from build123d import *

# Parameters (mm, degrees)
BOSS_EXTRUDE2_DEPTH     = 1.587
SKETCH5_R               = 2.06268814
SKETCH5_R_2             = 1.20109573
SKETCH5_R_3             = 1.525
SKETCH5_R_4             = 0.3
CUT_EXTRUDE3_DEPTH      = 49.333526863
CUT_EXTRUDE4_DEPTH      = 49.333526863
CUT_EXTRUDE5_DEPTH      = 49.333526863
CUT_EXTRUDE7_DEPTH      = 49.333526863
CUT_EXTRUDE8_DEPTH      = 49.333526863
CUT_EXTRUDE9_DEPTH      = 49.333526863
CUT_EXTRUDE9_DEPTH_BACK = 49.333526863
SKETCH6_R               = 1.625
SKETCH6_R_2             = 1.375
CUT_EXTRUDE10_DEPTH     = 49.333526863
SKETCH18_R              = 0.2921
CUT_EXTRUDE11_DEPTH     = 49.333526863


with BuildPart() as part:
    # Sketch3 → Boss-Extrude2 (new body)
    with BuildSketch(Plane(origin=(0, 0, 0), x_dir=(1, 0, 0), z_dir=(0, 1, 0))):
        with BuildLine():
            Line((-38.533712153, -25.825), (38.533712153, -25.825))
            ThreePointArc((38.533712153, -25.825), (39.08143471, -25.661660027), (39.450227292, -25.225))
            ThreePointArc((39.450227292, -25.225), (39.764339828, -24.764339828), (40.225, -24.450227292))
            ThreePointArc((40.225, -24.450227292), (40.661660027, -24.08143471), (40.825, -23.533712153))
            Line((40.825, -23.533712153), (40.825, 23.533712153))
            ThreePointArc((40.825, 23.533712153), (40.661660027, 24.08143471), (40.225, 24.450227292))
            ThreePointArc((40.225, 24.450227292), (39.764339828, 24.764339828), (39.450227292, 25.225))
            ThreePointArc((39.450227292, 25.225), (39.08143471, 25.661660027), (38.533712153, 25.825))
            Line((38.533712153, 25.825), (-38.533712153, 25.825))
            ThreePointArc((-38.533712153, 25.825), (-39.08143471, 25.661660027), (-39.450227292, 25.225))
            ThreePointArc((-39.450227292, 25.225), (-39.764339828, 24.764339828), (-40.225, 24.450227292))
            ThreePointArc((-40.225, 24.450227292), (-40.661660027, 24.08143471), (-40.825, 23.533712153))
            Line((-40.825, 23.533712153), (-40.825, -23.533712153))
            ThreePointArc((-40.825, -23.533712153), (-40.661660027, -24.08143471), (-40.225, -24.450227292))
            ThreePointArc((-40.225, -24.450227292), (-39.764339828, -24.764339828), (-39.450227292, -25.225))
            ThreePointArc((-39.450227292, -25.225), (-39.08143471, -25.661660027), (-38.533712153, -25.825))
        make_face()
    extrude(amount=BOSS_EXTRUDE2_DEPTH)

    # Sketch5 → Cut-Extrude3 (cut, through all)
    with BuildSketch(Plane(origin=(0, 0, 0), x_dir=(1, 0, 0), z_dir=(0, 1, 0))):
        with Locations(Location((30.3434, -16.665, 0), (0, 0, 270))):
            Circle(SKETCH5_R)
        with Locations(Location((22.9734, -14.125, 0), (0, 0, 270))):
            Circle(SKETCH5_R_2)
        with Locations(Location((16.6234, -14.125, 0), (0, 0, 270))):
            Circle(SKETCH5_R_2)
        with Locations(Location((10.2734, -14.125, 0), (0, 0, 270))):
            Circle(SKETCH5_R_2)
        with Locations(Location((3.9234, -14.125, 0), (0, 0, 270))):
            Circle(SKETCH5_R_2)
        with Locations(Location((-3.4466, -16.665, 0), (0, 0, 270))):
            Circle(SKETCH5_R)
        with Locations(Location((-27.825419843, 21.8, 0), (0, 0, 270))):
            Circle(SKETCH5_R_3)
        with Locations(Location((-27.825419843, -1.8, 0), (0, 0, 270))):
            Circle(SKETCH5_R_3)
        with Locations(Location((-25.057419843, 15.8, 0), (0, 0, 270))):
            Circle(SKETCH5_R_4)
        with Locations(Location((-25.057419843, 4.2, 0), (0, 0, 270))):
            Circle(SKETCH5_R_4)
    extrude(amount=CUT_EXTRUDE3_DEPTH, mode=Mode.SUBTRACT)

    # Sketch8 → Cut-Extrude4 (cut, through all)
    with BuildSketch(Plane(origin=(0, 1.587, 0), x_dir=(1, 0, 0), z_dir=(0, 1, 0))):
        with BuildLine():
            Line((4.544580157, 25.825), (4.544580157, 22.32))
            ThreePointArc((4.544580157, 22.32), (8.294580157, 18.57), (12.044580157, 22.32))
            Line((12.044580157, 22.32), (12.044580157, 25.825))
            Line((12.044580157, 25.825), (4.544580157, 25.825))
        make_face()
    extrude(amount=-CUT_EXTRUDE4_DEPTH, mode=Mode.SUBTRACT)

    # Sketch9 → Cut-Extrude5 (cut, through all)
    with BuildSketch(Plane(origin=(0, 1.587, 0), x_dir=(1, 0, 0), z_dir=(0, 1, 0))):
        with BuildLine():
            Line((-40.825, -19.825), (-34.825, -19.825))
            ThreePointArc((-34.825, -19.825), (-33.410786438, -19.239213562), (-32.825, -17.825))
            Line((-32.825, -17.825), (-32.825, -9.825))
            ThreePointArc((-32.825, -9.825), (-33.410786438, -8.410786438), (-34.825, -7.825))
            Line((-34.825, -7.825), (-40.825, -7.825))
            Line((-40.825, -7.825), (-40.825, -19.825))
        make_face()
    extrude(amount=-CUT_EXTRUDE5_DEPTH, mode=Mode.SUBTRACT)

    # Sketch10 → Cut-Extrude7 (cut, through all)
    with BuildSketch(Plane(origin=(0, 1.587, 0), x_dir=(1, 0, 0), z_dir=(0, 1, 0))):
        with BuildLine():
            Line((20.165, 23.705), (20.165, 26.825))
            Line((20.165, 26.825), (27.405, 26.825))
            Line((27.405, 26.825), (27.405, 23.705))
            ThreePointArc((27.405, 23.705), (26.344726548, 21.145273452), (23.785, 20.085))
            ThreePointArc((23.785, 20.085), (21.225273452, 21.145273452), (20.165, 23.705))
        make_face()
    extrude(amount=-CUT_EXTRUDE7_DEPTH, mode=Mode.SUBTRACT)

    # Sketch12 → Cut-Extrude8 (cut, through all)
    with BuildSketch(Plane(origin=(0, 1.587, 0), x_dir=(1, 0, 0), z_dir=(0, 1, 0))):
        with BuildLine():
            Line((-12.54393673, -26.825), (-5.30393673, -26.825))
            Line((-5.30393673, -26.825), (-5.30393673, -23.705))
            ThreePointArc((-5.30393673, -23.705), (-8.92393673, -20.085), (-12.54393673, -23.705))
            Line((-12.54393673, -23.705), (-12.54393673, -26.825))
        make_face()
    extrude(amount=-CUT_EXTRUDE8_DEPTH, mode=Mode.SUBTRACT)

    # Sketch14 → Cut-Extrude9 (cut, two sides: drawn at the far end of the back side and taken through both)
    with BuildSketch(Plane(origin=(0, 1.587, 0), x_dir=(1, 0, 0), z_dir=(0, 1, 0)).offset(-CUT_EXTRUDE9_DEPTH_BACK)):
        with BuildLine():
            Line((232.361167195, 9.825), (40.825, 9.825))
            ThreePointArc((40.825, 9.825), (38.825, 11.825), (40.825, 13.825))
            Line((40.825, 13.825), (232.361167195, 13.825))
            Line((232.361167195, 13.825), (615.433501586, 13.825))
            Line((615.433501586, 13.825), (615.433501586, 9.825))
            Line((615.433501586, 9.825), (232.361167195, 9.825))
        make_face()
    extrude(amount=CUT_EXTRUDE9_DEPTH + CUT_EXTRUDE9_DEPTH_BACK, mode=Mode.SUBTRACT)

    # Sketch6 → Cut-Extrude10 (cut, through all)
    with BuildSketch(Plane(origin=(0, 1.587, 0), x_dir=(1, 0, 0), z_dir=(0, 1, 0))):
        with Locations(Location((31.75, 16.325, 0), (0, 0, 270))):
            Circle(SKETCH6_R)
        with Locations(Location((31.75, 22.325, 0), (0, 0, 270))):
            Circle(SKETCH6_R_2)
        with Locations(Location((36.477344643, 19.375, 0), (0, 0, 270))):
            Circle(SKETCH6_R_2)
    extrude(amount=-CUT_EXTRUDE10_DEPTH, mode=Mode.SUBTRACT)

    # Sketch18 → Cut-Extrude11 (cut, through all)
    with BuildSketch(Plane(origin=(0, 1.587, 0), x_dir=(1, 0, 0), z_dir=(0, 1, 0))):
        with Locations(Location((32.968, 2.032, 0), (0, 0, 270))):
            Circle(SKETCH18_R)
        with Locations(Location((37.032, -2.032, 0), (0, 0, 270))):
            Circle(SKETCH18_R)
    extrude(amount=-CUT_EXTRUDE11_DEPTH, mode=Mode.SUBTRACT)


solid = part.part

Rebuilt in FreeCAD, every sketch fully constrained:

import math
import FreeCAD as App
import Part
import Sketcher
from FreeCAD import Vector

doc = App.newDocument("Part")
params = doc.addObject("Spreadsheet::Sheet", "Params")
for row, (alias, value) in enumerate([
    ("sketch1_radius", "1 mm"),
    ("sketch1_radius2", "1.5 mm"),
    ("pad1_length", "1.587 mm"),
    ("sketch2_diameter", "0.6 mm"),
    ("sketch2_diameter2", "3.05 mm"),
    ("sketch3_radius", "3.75 mm"),
    ("sketch4_radius", "2 mm"),
    ("sketch4_width", "6 mm"),
    ("sketch4_height", "8 mm"),
    ("sketch5_radius", "3.62 mm"),
    ("sketch5_height", "3.12 mm"),
    ("sketch6_radius", "3.62 mm"),
    ("sketch6_height", "3.12 mm"),
    ("sketch7_radius", "2 mm"),
    ("sketch8_diameter", "3.25 mm"),
    ("sketch8_diameter2", "2.75 mm"),
], start=1):
    params.set(f"A{row}", alias)
    params.set(f"B{row}", "=" + value)
    params.setAlias(f"B{row}", alias)

body = doc.addObject("PartDesign::Body", "Body")

# Sketch on XZ plane
sketch1 = doc.addObject("Sketcher::SketchObject", "Sketch")
body.addObject(sketch1)
sketch1.AttachmentSupport = (doc.XZ_Plane, [""])
sketch1.MapMode = "FlatFace"
sketch1.addGeometry([
    Part.LineSegment(Vector(-38.5, 25.8, 0), Vector(38.5, 25.8, 0)),  # 0
    Part.ArcOfCircle(Part.Circle(Vector(38.5, 24.8, 0), Vector(0, 0, 1), 1), math.radians(24), math.radians(90)),  # 1
    Part.ArcOfCircle(Part.Circle(Vector(40.8, 25.8, 0), Vector(0, 0, 1), 1.5), math.radians(-156), math.radians(-114)),  # 2
    Part.ArcOfCircle(Part.Circle(Vector(39.8, 23.5, 0), Vector(0, 0, 1), 1), math.radians(0), math.radians(66)),  # 3
    Part.LineSegment(Vector(40.8, 23.5, 0), Vector(40.8, -23.5, 0)),  # 4
    Part.ArcOfCircle(Part.Circle(Vector(39.8, -23.5, 0), Vector(0, 0, 1), 1), math.radians(-66), math.radians(0)),  # 5
    Part.ArcOfCircle(Part.Circle(Vector(40.8, -25.8, 0), Vector(0, 0, 1), 1.5), math.radians(114), math.radians(156)),  # 6
    Part.ArcOfCircle(Part.Circle(Vector(38.5, -24.8, 0), Vector(0, 0, 1), 1), math.radians(-90), math.radians(-24)),  # 7
    Part.LineSegment(Vector(38.5, -25.8, 0), Vector(-38.5, -25.8, 0)),  # 8
    Part.ArcOfCircle(Part.Circle(Vector(-38.5, -24.8, 0), Vector(0, 0, 1), 1), math.radians(-156), math.radians(-90)),  # 9
    Part.ArcOfCircle(Part.Circle(Vector(-40.8, -25.8, 0), Vector(0, 0, 1), 1.5), math.radians(24), math.radians(66)),  # 10
    Part.ArcOfCircle(Part.Circle(Vector(-39.8, -23.5, 0), Vector(0, 0, 1), 1), math.radians(180), math.radians(246)),  # 11
    Part.LineSegment(Vector(-40.8, -23.5, 0), Vector(-40.8, 23.5, 0)),  # 12
    Part.ArcOfCircle(Part.Circle(Vector(-39.8, 23.5, 0), Vector(0, 0, 1), 1), math.radians(114), math.radians(180)),  # 13
    Part.ArcOfCircle(Part.Circle(Vector(-40.8, 25.8, 0), Vector(0, 0, 1), 1.5), math.radians(-66), math.radians(-24)),  # 14
    Part.ArcOfCircle(Part.Circle(Vector(-38.5, 24.8, 0), Vector(0, 0, 1), 1), math.radians(90), math.radians(156)),  # 15
], False)
sketch1.addConstraint([
    Sketcher.Constraint("Tangent", 0, 2, 1, 2),
    Sketcher.Constraint("Tangent", 1, 1, 2, 1),
    Sketcher.Constraint("Tangent", 2, 2, 3, 2),
    Sketcher.Constraint("Tangent", 3, 1, 4, 1),
    Sketcher.Constraint("Tangent", 4, 2, 5, 2),
    Sketcher.Constraint("Tangent", 5, 1, 6, 1),
    Sketcher.Constraint("Tangent", 6, 2, 7, 2),
    Sketcher.Constraint("Tangent", 7, 1, 8, 1),
    Sketcher.Constraint("Tangent", 8, 2, 9, 2),
    Sketcher.Constraint("Tangent", 9, 1, 10, 1),
    Sketcher.Constraint("Tangent", 10, 2, 11, 2),
    Sketcher.Constraint("Tangent", 11, 1, 12, 1),
    Sketcher.Constraint("Tangent", 12, 2, 13, 2),
    Sketcher.Constraint("Tangent", 13, 1, 14, 1),
    Sketcher.Constraint("Tangent", 14, 2, 15, 2),
    Sketcher.Constraint("Tangent", 15, 1, 0, 1),
    Sketcher.Constraint("Horizontal", 0),
    Sketcher.Constraint("Vertical", 4),
    Sketcher.Constraint("Horizontal", 8),
    Sketcher.Constraint("Vertical", 12),
    Sketcher.Constraint("Equal", 1, 3),
    Sketcher.Constraint("Equal", 3, 5),
    Sketcher.Constraint("Equal", 2, 6),
    Sketcher.Constraint("Equal", 5, 7),
    Sketcher.Constraint("Equal", 7, 9),
    Sketcher.Constraint("Equal", 6, 10),
    Sketcher.Constraint("Equal", 9, 11),
    Sketcher.Constraint("Equal", 11, 13),
    Sketcher.Constraint("Equal", 10, 14),
    Sketcher.Constraint("Equal", 13, 15),
    Sketcher.Constraint("Symmetric", 1, 3, 9, 3, -1, 1),
    Sketcher.Constraint("Symmetric", 3, 3, 11, 3, -1, 1),
    Sketcher.Constraint("Symmetric", 6, 3, 14, 3, -1, 1),
    Sketcher.Constraint("Symmetric", 6, 3, 10, 3, -2),
    Sketcher.Constraint("Horizontal", 14, 3, 0, 2),
    Sketcher.Constraint("Vertical", 6, 3, 3, 1),
    Sketcher.Constraint("Radius", 1, 1.0),
    Sketcher.Constraint("Radius", 2, 1.5),
    Sketcher.Constraint("DistanceY", 6, 3, 1, 3, 50.65),
    Sketcher.Constraint("DistanceX", 10, 3, 5, 3, 80.65),
])
sketch1.setExpression("Constraints[36]", "Params.sketch1_radius")
sketch1.setExpression("Constraints[37]", "Params.sketch1_radius2")
pad1 = doc.addObject("PartDesign::Pad", "Pad")
body.addObject(pad1)
pad1.Profile = sketch1
pad1.setExpression("Length", "Params.pad1_length")
pad1.Reversed = True

# Sketch on XZ plane
sketch2 = doc.addObject("Sketcher::SketchObject", "Sketch001")
body.addObject(sketch2)
sketch2.AttachmentSupport = (doc.XZ_Plane, [""])
sketch2.MapMode = "FlatFace"
sketch2.addGeometry([
    Part.Circle(Vector(30.34, 16.66, 0), Vector(0, 0, 1), 2.06),  # 0
    Part.Circle(Vector(22.97, 14.12, 0), Vector(0, 0, 1), 1.2),  # 1
    Part.Circle(Vector(16.62, 14.12, 0), Vector(0, 0, 1), 1.2),  # 2
    Part.Circle(Vector(10.27, 14.12, 0), Vector(0, 0, 1), 1.2),  # 3
    Part.Circle(Vector(3.92, 14.12, 0), Vector(0, 0, 1), 1.2),  # 4
    Part.Circle(Vector(-3.45, 16.66, 0), Vector(0, 0, 1), 2.06),  # 5
    Part.Circle(Vector(-27.83, -21.8, 0), Vector(0, 0, 1), 1.52),  # 6
    Part.Circle(Vector(-27.83, 1.8, 0), Vector(0, 0, 1), 1.52),  # 7
    Part.Circle(Vector(-25.06, -15.8, 0), Vector(0, 0, 1), 0.3),  # 8
    Part.Circle(Vector(-25.06, -4.2, 0), Vector(0, 0, 1), 0.3),  # 9
], False)
sketch2.addConstraint([
    Sketcher.Constraint("Equal", 1, 2),
    Sketcher.Constraint("Equal", 2, 3),
    Sketcher.Constraint("Equal", 3, 4),
    Sketcher.Constraint("Equal", 0, 5),
    Sketcher.Constraint("Equal", 6, 7),
    Sketcher.Constraint("Equal", 8, 9),
    Sketcher.Constraint("Horizontal", 1, 3, 2, 3),
    Sketcher.Constraint("Horizontal", 2, 3, 3, 3),
    Sketcher.Constraint("Horizontal", 3, 3, 4, 3),
    Sketcher.Constraint("Horizontal", 0, 3, 5, 3),
    Sketcher.Constraint("Vertical", 6, 3, 7, 3),
    Sketcher.Constraint("Vertical", 8, 3, 9, 3),
    Sketcher.Constraint("Diameter", 8, 0.6),
    Sketcher.Constraint("Diameter", 6, 3.05),
    Sketcher.Constraint("DistanceY", 6, 3, 8, 3, 6.0),
    Sketcher.Constraint("DistanceY", 9, 3, 7, 3, 6.0),
    Sketcher.Constraint("DistanceY", 6, 3, -1, 1, 21.8),
    Sketcher.Constraint("DistanceY", -1, 1, 7, 3, 1.8),
    Sketcher.Constraint("DistanceX", 3, 3, 1, 3, 12.7),
    Sketcher.Constraint("DistanceX", 4, 3, 2, 3, 12.7),
    Sketcher.Constraint("Diameter", 1, 2.402191),
    Sketcher.Constraint("DistanceX", 1, 3, 0, 3, 7.37),
    Sketcher.Constraint("DistanceY", 1, 3, 0, 3, 2.54),
    Sketcher.Constraint("DistanceX", 2, 3, 1, 3, 6.35),
    Sketcher.Constraint("DistanceX", 5, 3, 4, 3, 7.37),
    Sketcher.Constraint("Diameter", 0, 4.125376),
    Sketcher.Constraint("DistanceY", -1, 1, 0, 3, 16.665),
    Sketcher.Constraint("DistanceX", 6, 3, 8, 3, 2.768),
    Sketcher.Constraint("DistanceX", -1, 1, 0, 3, 30.3434),
    Sketcher.Constraint("DistanceX", 6, 3, -1, 1, 27.82542),
])
sketch2.setExpression("Constraints[12]", "Params.sketch2_diameter")
sketch2.setExpression("Constraints[13]", "Params.sketch2_diameter2")
pocket1 = doc.addObject("PartDesign::Pocket", "Pocket")
body.addObject(pocket1)
pocket1.Profile = sketch2
pocket1.Type = "ThroughAll"

# Sketch on XZ plane
sketch3 = doc.addObject("Sketcher::SketchObject", "Sketch002")
body.addObject(sketch3)
sketch3.AttachmentSupport = (doc.XZ_Plane, [""])
sketch3.MapMode = "FlatFace"
sketch3.AttachmentOffset = App.Placement(Vector(0, 0, -1.587), App.Rotation())
sketch3.addGeometry([
    Part.LineSegment(Vector(4.5, -25.8, 0), Vector(4.5, -22.3, 0)),
    Part.ArcOfCircle(Part.Circle(Vector(8.3, -22.3, 0), Vector(0, 0, 1), 3.8), math.radians(0), math.radians(180)),
    Part.LineSegment(Vector(12, -22.3, 0), Vector(12, -25.8, 0)),
    Part.LineSegment(Vector(12, -25.8, 0), Vector(4.5, -25.8, 0)),
], False)
sketch3.addConstraint([
    Sketcher.Constraint("Tangent", 0, 2, 1, 2),
    Sketcher.Constraint("Tangent", 1, 1, 2, 1),
    Sketcher.Constraint("Coincident", 2, 2, 3, 1),
    Sketcher.Constraint("Coincident", 3, 2, 0, 1),
    Sketcher.Constraint("Vertical", 0),
    Sketcher.Constraint("Vertical", 2),
    Sketcher.Constraint("Horizontal", 3),
    Sketcher.Constraint("Radius", 1, 3.75),
    Sketcher.Constraint("DistanceY", 0, 1, 0, 2, 3.505),
    Sketcher.Constraint("DistanceY", 1, 3, -1, 1, 22.32),
    Sketcher.Constraint("DistanceX", -1, 1, 1, 3, 8.29458),
])
sketch3.setExpression("Constraints[7]", "Params.sketch3_radius")
pocket2 = doc.addObject("PartDesign::Pocket", "Pocket001")
body.addObject(pocket2)
pocket2.Profile = sketch3
pocket2.Type = "ThroughAll"
pocket2.Reversed = True

# Sketch on XZ plane
sketch4 = doc.addObject("Sketcher::SketchObject", "Sketch003")
body.addObject(sketch4)
sketch4.AttachmentSupport = (doc.XZ_Plane, [""])
sketch4.MapMode = "FlatFace"
sketch4.AttachmentOffset = App.Placement(Vector(0, 0, -1.587), App.Rotation())
sketch4.addGeometry([
    Part.LineSegment(Vector(-40.8, 19.8, 0), Vector(-34.8, 19.8, 0)),  # 0
    Part.ArcOfCircle(Part.Circle(Vector(-34.8, 17.8, 0), Vector(0, 0, 1), 2), math.radians(0), math.radians(90)),  # 1
    Part.LineSegment(Vector(-32.8, 17.8, 0), Vector(-32.8, 9.8, 0)),  # 2
    Part.ArcOfCircle(Part.Circle(Vector(-34.8, 9.8, 0), Vector(0, 0, 1), 2), math.radians(-90), math.radians(0)),  # 3
    Part.LineSegment(Vector(-34.8, 7.8, 0), Vector(-40.8, 7.8, 0)),  # 4
    Part.LineSegment(Vector(-40.8, 7.8, 0), Vector(-40.8, 19.8, 0)),  # 5
], False)
sketch4.addConstraint([
    Sketcher.Constraint("Tangent", 0, 2, 1, 2),
    Sketcher.Constraint("Tangent", 1, 1, 2, 1),
    Sketcher.Constraint("Tangent", 2, 2, 3, 2),
    Sketcher.Constraint("Tangent", 3, 1, 4, 1),
    Sketcher.Constraint("Coincident", 4, 2, 5, 1),
    Sketcher.Constraint("Coincident", 5, 2, 0, 1),
    Sketcher.Constraint("Horizontal", 0),
    Sketcher.Constraint("Vertical", 2),
    Sketcher.Constraint("Horizontal", 4),
    Sketcher.Constraint("Vertical", 5),
    Sketcher.Constraint("Equal", 1, 3),
    Sketcher.Constraint("Radius", 1, 2.0),
    Sketcher.Constraint("DistanceX", 0, 1, 0, 2, 6.0),
    Sketcher.Constraint("DistanceY", 2, 2, 2, 1, 8.0),
    Sketcher.Constraint("DistanceX", 1, 3, -1, 1, 34.825),
    Sketcher.Constraint("DistanceY", -1, 1, 1, 3, 17.825),
])
sketch4.setExpression("Constraints[11]", "Params.sketch4_radius")
sketch4.setExpression("Constraints[12]", "Params.sketch4_width")
sketch4.setExpression("Constraints[13]", "Params.sketch4_height")
pocket3 = doc.addObject("PartDesign::Pocket", "Pocket002")
body.addObject(pocket3)
pocket3.Profile = sketch4
pocket3.Type = "ThroughAll"
pocket3.Reversed = True

# Sketch on XZ plane
sketch5 = doc.addObject("Sketcher::SketchObject", "Sketch004")
body.addObject(sketch5)
sketch5.AttachmentSupport = (doc.XZ_Plane, [""])
sketch5.MapMode = "FlatFace"
sketch5.AttachmentOffset = App.Placement(Vector(0, 0, -1.587), App.Rotation())
sketch5.addGeometry([
    Part.LineSegment(Vector(20.2, -26.8, 0), Vector(20.2, -23.7, 0)),  # 0
    Part.ArcOfCircle(Part.Circle(Vector(23.8, -23.7, 0), Vector(0, 0, 1), 3.6), math.radians(90), math.radians(180)),  # 1
    Part.ArcOfCircle(Part.Circle(Vector(23.8, -23.7, 0), Vector(0, 0, 1), 3.6), math.radians(0), math.radians(90)),  # 2
    Part.LineSegment(Vector(27.4, -23.7, 0), Vector(27.4, -26.8, 0)),  # 3
    Part.LineSegment(Vector(27.4, -26.8, 0), Vector(20.2, -26.8, 0)),  # 4
], False)
sketch5.addConstraint([
    Sketcher.Constraint("Tangent", 0, 2, 1, 2),
    Sketcher.Constraint("Tangent", 1, 1, 2, 2),
    Sketcher.Constraint("Tangent", 2, 1, 3, 1),
    Sketcher.Constraint("Coincident", 3, 2, 4, 1),
    Sketcher.Constraint("Coincident", 4, 2, 0, 1),
    Sketcher.Constraint("Vertical", 0),
    Sketcher.Constraint("Vertical", 3),
    Sketcher.Constraint("Horizontal", 4),
    Sketcher.Constraint("Equal", 1, 2),
    Sketcher.Constraint("Vertical", 2, 3, 1, 1),
    Sketcher.Constraint("Radius", 1, 3.62),
    Sketcher.Constraint("DistanceY", 0, 1, 0, 2, 3.12),
    Sketcher.Constraint("DistanceX", -1, 1, 1, 3, 23.785),
    Sketcher.Constraint("DistanceY", 1, 3, -1, 1, 23.705),
])
sketch5.setExpression("Constraints[10]", "Params.sketch5_radius")
sketch5.setExpression("Constraints[11]", "Params.sketch5_height")
pocket4 = doc.addObject("PartDesign::Pocket", "Pocket003")
body.addObject(pocket4)
pocket4.Profile = sketch5
pocket4.Type = "ThroughAll"
pocket4.Reversed = True

# Sketch on XZ plane
sketch6 = doc.addObject("Sketcher::SketchObject", "Sketch005")
body.addObject(sketch6)
sketch6.AttachmentSupport = (doc.XZ_Plane, [""])
sketch6.MapMode = "FlatFace"
sketch6.AttachmentOffset = App.Placement(Vector(0, 0, -1.587), App.Rotation())
sketch6.addGeometry([
    Part.LineSegment(Vector(-12.5, 26.8, 0), Vector(-5.3, 26.8, 0)),
    Part.LineSegment(Vector(-5.3, 26.8, 0), Vector(-5.3, 23.7, 0)),
    Part.ArcOfCircle(Part.Circle(Vector(-8.9, 23.7, 0), Vector(0, 0, 1), 3.6), math.radians(180), math.radians(360)),
    Part.LineSegment(Vector(-12.5, 23.7, 0), Vector(-12.5, 26.8, 0)),
], False)
sketch6.addConstraint([
    Sketcher.Constraint("Coincident", 0, 2, 1, 1),
    Sketcher.Constraint("Tangent", 1, 2, 2, 2),
    Sketcher.Constraint("Tangent", 2, 1, 3, 1),
    Sketcher.Constraint("Coincident", 3, 2, 0, 1),
    Sketcher.Constraint("Horizontal", 0),
    Sketcher.Constraint("Vertical", 1),
    Sketcher.Constraint("Vertical", 3),
    Sketcher.Constraint("Radius", 2, 3.62),
    Sketcher.Constraint("DistanceY", 1, 2, 1, 1, 3.12),
    Sketcher.Constraint("DistanceY", -1, 1, 2, 3, 23.705),
    Sketcher.Constraint("DistanceX", 2, 3, -1, 1, 8.923937),
])
sketch6.setExpression("Constraints[7]", "Params.sketch6_radius")
sketch6.setExpression("Constraints[8]", "Params.sketch6_height")
pocket5 = doc.addObject("PartDesign::Pocket", "Pocket004")
body.addObject(pocket5)
pocket5.Profile = sketch6
pocket5.Type = "ThroughAll"
pocket5.Reversed = True

# Sketch on XZ plane
sketch7 = doc.addObject("Sketcher::SketchObject", "Sketch006")
body.addObject(sketch7)
sketch7.AttachmentSupport = (doc.XZ_Plane, [""])
sketch7.MapMode = "FlatFace"
sketch7.AttachmentOffset = App.Placement(Vector(0, 0, -1.587), App.Rotation())
sketch7.addGeometry([
    Part.ArcOfCircle(Part.Circle(Vector(40.8, -11.8, 0), Vector(0, 0, 1), 2), math.radians(90), math.radians(270)),
    Part.LineSegment(Vector(40.8, -9.8, 0), Vector(615.4, -9.8, 0)),
    Part.LineSegment(Vector(615.4, -9.8, 0), Vector(615.4, -13.8, 0)),
    Part.LineSegment(Vector(615.4, -13.8, 0), Vector(40.8, -13.8, 0)),
], False)
sketch7.addConstraint([
    Sketcher.Constraint("Tangent", 0, 1, 1, 1),
    Sketcher.Constraint("Coincident", 1, 2, 2, 1),
    Sketcher.Constraint("Coincident", 2, 2, 3, 1),
    Sketcher.Constraint("Tangent", 3, 2, 0, 2),
    Sketcher.Constraint("Horizontal", 1),
    Sketcher.Constraint("Vertical", 2),
    Sketcher.Constraint("Horizontal", 3),
    Sketcher.Constraint("Radius", 0, 2.0),
    Sketcher.Constraint("DistanceX", 1, 1, 1, 2, 574.608502),
    Sketcher.Constraint("DistanceX", -1, 1, 0, 3, 40.825),
    Sketcher.Constraint("DistanceY", 0, 3, -1, 1, 11.825),
])
sketch7.setExpression("Constraints[7]", "Params.sketch7_radius")
pocket6 = doc.addObject("PartDesign::Pocket", "Pocket005")
body.addObject(pocket6)
pocket6.Profile = sketch7
pocket6.Type = "ThroughAll"
pocket6.Midplane = True

# Sketch on XZ plane
sketch8 = doc.addObject("Sketcher::SketchObject", "Sketch007")
body.addObject(sketch8)
sketch8.AttachmentSupport = (doc.XZ_Plane, [""])
sketch8.MapMode = "FlatFace"
sketch8.AttachmentOffset = App.Placement(Vector(0, 0, -1.587), App.Rotation())
sketch8.addGeometry([
    Part.Circle(Vector(31.8, -16.3, 0), Vector(0, 0, 1), 1.6),
    Part.Circle(Vector(31.8, -22.3, 0), Vector(0, 0, 1), 1.4),
    Part.Circle(Vector(36.5, -19.4, 0), Vector(0, 0, 1), 1.4),
], False)
sketch8.addConstraint([
    Sketcher.Constraint("Equal", 1, 2),
    Sketcher.Constraint("Vertical", 0, 3, 1, 3),
    Sketcher.Constraint("Diameter", 0, 3.25),
    Sketcher.Constraint("Diameter", 1, 2.75),
    Sketcher.Constraint("DistanceY", 1, 3, 0, 3, 6.0),
    Sketcher.Constraint("DistanceX", -1, 1, 0, 3, 31.75),
    Sketcher.Constraint("DistanceY", 1, 3, 2, 3, 2.95),
    Sketcher.Constraint("DistanceY", 0, 3, -1, 1, 16.325),
    Sketcher.Constraint("DistanceX", -1, 1, 2, 3, 36.477345),
])
sketch8.setExpression("Constraints[2]", "Params.sketch8_diameter")
sketch8.setExpression("Constraints[3]", "Params.sketch8_diameter2")
pocket7 = doc.addObject("PartDesign::Pocket", "Pocket006")
body.addObject(pocket7)
pocket7.Profile = sketch8
pocket7.Type = "ThroughAll"
pocket7.Reversed = True

# Sketch on XZ plane
sketch9 = doc.addObject("Sketcher::SketchObject", "Sketch008")
body.addObject(sketch9)
sketch9.AttachmentSupport = (doc.XZ_Plane, [""])
sketch9.MapMode = "FlatFace"
sketch9.AttachmentOffset = App.Placement(Vector(0, 0, -1.587), App.Rotation())
sketch9.addGeometry([
    Part.Circle(Vector(32.97, -2.03, 0), Vector(0, 0, 1), 0.29),
    Part.Circle(Vector(37.03, 2.03, 0), Vector(0, 0, 1), 0.29),
], False)
sketch9.addConstraint([
    Sketcher.Constraint("Equal", 0, 1),
    Sketcher.Constraint("Diameter", 0, 0.5842),
    Sketcher.Constraint("DistanceX", -1, 1, 0, 3, 32.968),
    Sketcher.Constraint("DistanceY", 0, 3, -1, 1, 2.032),
    Sketcher.Constraint("DistanceX", -1, 1, 1, 3, 37.032),
    Sketcher.Constraint("DistanceY", -1, 1, 1, 3, 2.032),
])
pocket8 = doc.addObject("PartDesign::Pocket", "Pocket007")
body.addObject(pocket8)
pocket8.Profile = sketch9
pocket8.Type = "ThroughAll"
pocket8.Reversed = True

doc.recompute()
